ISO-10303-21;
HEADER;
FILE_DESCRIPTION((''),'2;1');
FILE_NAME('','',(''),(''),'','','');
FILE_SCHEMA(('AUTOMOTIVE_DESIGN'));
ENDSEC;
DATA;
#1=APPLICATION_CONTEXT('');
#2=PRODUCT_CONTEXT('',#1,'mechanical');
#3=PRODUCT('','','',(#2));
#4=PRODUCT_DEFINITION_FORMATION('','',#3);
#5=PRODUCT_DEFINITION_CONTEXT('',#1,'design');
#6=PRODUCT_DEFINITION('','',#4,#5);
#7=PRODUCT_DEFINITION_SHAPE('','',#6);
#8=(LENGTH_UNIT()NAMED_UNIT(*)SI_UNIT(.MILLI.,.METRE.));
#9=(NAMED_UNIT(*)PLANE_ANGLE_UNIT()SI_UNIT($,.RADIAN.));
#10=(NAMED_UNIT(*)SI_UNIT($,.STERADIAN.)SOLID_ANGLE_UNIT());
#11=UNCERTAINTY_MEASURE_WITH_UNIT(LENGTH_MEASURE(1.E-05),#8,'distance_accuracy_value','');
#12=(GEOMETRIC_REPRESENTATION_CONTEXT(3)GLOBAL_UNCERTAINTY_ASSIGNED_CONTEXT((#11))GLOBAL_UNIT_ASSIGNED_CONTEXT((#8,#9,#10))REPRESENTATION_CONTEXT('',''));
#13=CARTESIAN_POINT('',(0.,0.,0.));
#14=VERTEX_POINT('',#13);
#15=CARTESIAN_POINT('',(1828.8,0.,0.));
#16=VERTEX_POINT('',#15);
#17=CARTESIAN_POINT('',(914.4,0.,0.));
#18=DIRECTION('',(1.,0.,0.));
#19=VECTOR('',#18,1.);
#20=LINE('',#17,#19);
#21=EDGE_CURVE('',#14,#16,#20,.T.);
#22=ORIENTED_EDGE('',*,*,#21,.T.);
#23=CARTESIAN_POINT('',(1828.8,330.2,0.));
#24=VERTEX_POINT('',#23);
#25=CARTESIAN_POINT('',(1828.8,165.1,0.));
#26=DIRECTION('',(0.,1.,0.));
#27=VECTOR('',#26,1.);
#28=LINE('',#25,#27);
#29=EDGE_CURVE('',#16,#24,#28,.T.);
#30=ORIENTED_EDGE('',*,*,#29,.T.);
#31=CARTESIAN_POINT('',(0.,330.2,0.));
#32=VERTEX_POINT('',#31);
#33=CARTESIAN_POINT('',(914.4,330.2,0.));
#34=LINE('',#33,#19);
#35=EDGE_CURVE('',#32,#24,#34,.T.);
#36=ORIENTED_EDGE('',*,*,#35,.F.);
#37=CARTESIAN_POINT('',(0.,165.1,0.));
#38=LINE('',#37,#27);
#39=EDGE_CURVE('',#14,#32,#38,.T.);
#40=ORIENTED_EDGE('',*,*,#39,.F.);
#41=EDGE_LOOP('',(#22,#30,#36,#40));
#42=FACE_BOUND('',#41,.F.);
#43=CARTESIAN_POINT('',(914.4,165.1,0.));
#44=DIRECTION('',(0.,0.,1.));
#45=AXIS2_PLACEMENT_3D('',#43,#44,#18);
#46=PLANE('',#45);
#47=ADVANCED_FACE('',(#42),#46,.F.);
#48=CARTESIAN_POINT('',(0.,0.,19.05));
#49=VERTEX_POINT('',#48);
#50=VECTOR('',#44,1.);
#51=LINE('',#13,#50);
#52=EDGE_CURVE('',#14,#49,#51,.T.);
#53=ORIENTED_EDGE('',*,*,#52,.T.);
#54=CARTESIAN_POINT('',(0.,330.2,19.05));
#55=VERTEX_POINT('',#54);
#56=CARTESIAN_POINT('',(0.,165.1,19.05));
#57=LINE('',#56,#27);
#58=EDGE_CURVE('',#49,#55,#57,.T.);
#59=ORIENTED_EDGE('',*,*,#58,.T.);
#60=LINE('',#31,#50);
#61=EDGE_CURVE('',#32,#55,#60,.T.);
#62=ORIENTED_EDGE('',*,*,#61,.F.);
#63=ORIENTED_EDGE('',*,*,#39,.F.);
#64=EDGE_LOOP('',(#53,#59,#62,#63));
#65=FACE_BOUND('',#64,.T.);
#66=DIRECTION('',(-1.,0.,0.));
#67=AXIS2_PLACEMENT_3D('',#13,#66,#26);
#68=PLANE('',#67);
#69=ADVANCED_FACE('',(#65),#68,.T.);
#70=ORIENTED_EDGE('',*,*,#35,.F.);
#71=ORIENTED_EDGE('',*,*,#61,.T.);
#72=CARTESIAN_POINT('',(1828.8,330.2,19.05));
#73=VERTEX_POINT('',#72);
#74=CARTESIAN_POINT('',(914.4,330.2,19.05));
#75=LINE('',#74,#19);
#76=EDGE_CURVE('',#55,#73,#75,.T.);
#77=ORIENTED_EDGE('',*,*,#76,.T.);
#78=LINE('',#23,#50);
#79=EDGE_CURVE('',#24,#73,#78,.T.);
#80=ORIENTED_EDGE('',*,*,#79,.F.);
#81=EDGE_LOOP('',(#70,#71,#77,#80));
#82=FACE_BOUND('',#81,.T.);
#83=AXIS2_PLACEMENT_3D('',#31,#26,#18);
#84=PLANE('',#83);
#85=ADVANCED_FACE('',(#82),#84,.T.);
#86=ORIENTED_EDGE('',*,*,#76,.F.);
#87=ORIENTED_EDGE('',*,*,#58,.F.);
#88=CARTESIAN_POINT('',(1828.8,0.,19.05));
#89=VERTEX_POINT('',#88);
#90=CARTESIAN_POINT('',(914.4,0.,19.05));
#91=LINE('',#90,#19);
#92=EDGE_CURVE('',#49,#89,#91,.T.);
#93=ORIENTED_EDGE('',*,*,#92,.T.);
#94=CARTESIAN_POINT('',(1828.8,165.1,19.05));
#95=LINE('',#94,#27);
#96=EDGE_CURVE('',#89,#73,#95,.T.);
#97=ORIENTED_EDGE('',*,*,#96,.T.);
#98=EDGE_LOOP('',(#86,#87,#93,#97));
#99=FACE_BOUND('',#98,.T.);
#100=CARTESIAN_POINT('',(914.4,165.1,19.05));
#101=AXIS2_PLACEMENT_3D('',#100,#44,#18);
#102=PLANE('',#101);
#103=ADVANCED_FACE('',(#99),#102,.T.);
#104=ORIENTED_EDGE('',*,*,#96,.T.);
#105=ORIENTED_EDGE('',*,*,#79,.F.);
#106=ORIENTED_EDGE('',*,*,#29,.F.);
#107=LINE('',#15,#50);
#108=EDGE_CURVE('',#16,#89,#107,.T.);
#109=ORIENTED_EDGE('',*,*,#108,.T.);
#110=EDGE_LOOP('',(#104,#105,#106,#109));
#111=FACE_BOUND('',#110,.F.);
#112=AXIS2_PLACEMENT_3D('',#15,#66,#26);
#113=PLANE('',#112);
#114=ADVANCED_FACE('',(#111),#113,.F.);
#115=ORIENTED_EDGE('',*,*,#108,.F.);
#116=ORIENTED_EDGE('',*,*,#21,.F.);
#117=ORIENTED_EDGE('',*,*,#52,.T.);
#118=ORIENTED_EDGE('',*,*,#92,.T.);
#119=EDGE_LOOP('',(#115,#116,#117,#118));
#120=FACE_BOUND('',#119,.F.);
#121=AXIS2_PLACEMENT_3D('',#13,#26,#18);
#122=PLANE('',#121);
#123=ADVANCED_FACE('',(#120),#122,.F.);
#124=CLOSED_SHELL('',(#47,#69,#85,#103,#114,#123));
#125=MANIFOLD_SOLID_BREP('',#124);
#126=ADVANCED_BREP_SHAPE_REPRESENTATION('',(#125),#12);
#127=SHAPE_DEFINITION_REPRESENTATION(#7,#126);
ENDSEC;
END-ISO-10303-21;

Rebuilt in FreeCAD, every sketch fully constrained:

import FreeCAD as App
import Part
import Sketcher
Q = App.Units.Quantity


def add_polygon(sketch, points):
    """Adds a closed chain of lines whose ends are joined by coincident constraints."""
    first, n = sketch.GeometryCount, len(points)
    for a, b in zip(points, points[1:] + points[:1]):
        sketch.addGeometry(Part.LineSegment(App.Vector(*a, 0), App.Vector(*b, 0)), False)
    for i in range(n):
        sketch.addConstraint(Sketcher.Constraint("Coincident", first + i, 2, first + (i + 1) % n, 1))

doc = App.newDocument("Part")
params = doc.addObject("Spreadsheet::Sheet", "Params")
for row, (alias, value) in enumerate([
    ("sketch1_width", "72 in"),
    ("sketch1_height", "13 in"),
    ("pad1_length", "0.75 in"),
], start=1):
    params.set(f"A{row}", alias)
    params.set(f"B{row}", "=" + value)
    params.setAlias(f"B{row}", alias)

body = doc.addObject("PartDesign::Body", "Body")

sketch1 = body.newObject("Sketcher::SketchObject", "Sketch")
sketch1.AttachmentSupport = (doc.getObject("XY_Plane"), [""])
sketch1.MapMode = "FlatFace"
add_polygon(sketch1, [(0, 330.2), (0, 0), (1828.8, 0), (1828.8, 330.2)])
sketch1.addConstraint([
    Sketcher.Constraint("Vertical", 0),
    Sketcher.Constraint("Horizontal", 1),
    Sketcher.Constraint("Vertical", 2),
    Sketcher.Constraint("Horizontal", 3),
    Sketcher.Constraint("Coincident", 0, 2, -1, 1),
    Sketcher.Constraint("DistanceX", 1, 1, 1, 2, Q("72 in")),
    Sketcher.Constraint("DistanceY", 0, 2, 0, 1, Q("13 in")),
])
sketch1.setExpression("Constraints[9]", "Params.sketch1_width")
sketch1.setExpression("Constraints[10]", "Params.sketch1_height")
pad1 = body.newObject("PartDesign::Pad", "Pad")
pad1.Profile = sketch1
pad1.setExpression("Length", "Params.pad1_length")

doc.recompute()
